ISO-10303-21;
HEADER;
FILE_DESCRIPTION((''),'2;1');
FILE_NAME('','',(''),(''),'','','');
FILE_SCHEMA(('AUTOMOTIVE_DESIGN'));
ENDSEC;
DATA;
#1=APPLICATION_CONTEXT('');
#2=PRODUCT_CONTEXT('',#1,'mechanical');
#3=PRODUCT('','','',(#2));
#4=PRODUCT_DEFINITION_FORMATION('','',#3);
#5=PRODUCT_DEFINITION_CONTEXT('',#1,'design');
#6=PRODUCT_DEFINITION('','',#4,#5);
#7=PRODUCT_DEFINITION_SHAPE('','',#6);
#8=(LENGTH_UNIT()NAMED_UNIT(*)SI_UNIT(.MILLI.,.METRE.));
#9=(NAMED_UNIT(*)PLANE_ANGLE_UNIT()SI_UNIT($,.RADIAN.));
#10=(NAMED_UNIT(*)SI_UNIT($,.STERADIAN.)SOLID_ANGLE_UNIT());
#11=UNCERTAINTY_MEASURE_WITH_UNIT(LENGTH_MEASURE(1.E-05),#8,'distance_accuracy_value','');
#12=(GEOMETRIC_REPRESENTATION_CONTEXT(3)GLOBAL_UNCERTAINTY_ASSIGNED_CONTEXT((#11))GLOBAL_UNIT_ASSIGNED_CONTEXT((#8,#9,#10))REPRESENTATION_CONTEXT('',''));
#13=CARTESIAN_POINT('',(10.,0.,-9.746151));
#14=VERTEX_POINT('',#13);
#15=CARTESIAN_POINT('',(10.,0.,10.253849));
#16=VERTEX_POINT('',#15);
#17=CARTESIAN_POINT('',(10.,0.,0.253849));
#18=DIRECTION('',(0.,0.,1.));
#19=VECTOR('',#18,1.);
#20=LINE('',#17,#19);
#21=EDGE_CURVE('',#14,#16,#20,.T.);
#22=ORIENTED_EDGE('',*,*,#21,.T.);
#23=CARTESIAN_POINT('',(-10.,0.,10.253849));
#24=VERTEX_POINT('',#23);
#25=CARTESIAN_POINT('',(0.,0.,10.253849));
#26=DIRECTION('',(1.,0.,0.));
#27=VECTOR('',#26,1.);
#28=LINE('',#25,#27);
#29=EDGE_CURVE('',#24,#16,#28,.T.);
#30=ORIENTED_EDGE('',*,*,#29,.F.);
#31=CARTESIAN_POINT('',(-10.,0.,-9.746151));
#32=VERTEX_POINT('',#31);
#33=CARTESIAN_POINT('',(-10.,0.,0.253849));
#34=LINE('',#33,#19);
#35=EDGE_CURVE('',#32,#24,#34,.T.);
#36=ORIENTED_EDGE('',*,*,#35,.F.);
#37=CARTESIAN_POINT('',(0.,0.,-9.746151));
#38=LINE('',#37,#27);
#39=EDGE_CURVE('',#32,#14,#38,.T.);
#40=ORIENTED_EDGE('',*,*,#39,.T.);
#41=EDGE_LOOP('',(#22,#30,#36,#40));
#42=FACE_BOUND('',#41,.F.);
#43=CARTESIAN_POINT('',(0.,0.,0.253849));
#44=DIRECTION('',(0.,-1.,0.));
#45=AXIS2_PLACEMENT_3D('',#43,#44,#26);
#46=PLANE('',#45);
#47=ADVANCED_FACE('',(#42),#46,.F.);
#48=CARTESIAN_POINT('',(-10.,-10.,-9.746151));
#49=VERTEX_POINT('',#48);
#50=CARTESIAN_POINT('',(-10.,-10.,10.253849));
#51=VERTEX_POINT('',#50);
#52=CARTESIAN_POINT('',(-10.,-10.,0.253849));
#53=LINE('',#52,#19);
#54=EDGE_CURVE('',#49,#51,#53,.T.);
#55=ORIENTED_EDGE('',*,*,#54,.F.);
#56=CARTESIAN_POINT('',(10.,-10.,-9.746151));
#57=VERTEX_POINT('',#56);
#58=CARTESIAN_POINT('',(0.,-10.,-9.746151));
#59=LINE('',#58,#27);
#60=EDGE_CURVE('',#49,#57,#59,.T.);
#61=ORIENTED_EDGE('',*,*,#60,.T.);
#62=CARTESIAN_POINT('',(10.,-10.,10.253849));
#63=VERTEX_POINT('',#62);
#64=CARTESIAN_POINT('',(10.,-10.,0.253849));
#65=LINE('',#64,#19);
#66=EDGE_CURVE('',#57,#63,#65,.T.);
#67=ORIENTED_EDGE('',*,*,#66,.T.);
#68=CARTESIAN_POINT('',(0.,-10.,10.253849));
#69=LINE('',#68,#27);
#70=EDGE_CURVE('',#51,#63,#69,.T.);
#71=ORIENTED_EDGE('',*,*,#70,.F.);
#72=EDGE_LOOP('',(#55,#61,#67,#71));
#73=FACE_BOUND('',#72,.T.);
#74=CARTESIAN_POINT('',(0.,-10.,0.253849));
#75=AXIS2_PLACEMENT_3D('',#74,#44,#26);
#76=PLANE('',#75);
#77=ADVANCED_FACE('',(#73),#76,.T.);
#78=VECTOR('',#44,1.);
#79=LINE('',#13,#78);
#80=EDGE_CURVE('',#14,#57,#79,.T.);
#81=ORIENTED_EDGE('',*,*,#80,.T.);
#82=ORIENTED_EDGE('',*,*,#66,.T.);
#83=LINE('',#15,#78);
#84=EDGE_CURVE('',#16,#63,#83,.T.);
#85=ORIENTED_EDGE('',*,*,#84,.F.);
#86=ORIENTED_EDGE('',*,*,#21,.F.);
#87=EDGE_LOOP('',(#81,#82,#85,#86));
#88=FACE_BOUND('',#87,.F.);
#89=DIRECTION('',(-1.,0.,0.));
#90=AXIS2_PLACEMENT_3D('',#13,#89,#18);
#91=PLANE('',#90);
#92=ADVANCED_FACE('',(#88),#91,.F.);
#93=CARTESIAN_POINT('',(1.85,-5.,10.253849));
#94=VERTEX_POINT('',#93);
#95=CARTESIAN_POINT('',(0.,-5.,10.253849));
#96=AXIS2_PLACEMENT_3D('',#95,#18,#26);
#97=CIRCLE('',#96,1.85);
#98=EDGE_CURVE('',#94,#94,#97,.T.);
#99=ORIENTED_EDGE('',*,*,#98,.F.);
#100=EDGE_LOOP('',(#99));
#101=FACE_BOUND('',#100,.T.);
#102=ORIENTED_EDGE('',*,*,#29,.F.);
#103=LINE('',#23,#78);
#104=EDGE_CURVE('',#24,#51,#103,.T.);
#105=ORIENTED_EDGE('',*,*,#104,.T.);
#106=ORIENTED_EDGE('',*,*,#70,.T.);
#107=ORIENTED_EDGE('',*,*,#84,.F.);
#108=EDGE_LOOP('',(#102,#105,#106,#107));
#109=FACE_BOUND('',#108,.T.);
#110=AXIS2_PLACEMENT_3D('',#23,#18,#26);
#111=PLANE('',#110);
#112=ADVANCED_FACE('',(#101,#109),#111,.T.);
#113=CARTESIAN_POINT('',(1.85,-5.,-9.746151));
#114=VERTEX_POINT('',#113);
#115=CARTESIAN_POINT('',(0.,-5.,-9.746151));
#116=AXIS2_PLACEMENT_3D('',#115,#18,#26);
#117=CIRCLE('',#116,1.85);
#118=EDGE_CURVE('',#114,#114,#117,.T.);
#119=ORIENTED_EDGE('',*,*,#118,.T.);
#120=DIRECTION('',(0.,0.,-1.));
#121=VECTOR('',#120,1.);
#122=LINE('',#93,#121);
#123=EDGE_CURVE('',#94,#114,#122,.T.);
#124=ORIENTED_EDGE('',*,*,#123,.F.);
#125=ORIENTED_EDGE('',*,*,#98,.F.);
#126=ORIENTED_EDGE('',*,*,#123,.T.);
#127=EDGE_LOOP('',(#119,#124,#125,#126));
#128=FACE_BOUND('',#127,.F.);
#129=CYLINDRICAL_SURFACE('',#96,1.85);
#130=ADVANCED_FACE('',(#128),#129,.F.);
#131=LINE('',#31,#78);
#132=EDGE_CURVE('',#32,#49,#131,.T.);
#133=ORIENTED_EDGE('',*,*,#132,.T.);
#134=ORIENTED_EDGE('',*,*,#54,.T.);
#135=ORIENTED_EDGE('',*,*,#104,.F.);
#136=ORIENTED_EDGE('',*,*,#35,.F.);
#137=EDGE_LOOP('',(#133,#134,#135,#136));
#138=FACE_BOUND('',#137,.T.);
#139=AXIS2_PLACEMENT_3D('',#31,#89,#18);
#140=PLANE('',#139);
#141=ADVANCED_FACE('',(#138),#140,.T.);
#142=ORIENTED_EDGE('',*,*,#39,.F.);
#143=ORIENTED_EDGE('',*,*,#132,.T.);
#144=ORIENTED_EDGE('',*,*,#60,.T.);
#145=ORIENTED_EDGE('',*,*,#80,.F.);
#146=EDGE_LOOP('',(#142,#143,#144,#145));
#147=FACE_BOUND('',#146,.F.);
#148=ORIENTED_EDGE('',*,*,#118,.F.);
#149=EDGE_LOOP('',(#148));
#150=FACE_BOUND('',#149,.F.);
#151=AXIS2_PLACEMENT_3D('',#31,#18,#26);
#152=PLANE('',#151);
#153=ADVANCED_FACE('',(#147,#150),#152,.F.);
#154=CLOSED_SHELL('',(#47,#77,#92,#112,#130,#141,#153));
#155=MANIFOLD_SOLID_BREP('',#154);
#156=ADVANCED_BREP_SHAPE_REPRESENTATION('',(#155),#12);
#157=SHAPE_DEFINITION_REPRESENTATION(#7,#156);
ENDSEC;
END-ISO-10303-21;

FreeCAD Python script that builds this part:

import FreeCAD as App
import Part
import Sketcher
from FreeCAD import Vector


def add_polygon(sketch, points):
    """Adds a closed chain of lines whose ends are joined by coincident constraints."""
    first, n = sketch.GeometryCount, len(points)
    for a, b in zip(points, points[1:] + points[:1]):
        sketch.addGeometry(Part.LineSegment(App.Vector(*a, 0), App.Vector(*b, 0)), False)
    for i in range(n):
        sketch.addConstraint(Sketcher.Constraint("Coincident", first + i, 2, first + (i + 1) % n, 1))

doc = App.newDocument("Part")
body = doc.addObject("PartDesign::Body", "Body")

# Sketch on XZ plane
sketch1 = body.newObject("Sketcher::SketchObject", "Sketch")
sketch1.AttachmentSupport = (doc.getObject("XZ_Plane"), [""])
sketch1.MapMode = "FlatFace"
add_polygon(sketch1, [(-10, 10), (-10, -10), (10, -10), (10, 10)])  # lines 0-3
sketch1.addConstraint([
    Sketcher.Constraint("Vertical", 0),
    Sketcher.Constraint("Horizontal", 1),
    Sketcher.Constraint("Vertical", 2),
    Sketcher.Constraint("Horizontal", 3),
    Sketcher.Constraint("Equal", 3, 0),
    Sketcher.Constraint("DistanceX", 1, 1, 1, 2, 20.0),
    Sketcher.Constraint("DistanceX", 0, 2, -1, 1, 10.0),
    Sketcher.Constraint("DistanceY", 0, 2, -1, 1, 9.746151),
])
pad1 = body.newObject("PartDesign::Pad", "Pad")
pad1.Profile = sketch1
pad1.Length = 10

# Sketch on XY plane
sketch2 = body.newObject("Sketcher::SketchObject", "Sketch001")
sketch2.AttachmentSupport = (doc.getObject("XY_Plane"), [""])
sketch2.MapMode = "FlatFace"
sketch2.AttachmentOffset = App.Placement(Vector(0, 0, 10.253849), App.Rotation())
sketch2.addGeometry(Part.Circle(Vector(0, -5, 0), Vector(0, 0, 1), 1.9), False)
sketch2.addConstraint([
    Sketcher.Constraint("PointOnObject", 0, 3, -2),
    Sketcher.Constraint("Diameter", 0, 3.7),
    Sketcher.Constraint("DistanceY", 0, 3, -1, 1, 5.0),
])
pocket1 = body.newObject("PartDesign::Pocket", "Pocket")
pocket1.Profile = sketch2
pocket1.Length = 25

doc.recompute()
